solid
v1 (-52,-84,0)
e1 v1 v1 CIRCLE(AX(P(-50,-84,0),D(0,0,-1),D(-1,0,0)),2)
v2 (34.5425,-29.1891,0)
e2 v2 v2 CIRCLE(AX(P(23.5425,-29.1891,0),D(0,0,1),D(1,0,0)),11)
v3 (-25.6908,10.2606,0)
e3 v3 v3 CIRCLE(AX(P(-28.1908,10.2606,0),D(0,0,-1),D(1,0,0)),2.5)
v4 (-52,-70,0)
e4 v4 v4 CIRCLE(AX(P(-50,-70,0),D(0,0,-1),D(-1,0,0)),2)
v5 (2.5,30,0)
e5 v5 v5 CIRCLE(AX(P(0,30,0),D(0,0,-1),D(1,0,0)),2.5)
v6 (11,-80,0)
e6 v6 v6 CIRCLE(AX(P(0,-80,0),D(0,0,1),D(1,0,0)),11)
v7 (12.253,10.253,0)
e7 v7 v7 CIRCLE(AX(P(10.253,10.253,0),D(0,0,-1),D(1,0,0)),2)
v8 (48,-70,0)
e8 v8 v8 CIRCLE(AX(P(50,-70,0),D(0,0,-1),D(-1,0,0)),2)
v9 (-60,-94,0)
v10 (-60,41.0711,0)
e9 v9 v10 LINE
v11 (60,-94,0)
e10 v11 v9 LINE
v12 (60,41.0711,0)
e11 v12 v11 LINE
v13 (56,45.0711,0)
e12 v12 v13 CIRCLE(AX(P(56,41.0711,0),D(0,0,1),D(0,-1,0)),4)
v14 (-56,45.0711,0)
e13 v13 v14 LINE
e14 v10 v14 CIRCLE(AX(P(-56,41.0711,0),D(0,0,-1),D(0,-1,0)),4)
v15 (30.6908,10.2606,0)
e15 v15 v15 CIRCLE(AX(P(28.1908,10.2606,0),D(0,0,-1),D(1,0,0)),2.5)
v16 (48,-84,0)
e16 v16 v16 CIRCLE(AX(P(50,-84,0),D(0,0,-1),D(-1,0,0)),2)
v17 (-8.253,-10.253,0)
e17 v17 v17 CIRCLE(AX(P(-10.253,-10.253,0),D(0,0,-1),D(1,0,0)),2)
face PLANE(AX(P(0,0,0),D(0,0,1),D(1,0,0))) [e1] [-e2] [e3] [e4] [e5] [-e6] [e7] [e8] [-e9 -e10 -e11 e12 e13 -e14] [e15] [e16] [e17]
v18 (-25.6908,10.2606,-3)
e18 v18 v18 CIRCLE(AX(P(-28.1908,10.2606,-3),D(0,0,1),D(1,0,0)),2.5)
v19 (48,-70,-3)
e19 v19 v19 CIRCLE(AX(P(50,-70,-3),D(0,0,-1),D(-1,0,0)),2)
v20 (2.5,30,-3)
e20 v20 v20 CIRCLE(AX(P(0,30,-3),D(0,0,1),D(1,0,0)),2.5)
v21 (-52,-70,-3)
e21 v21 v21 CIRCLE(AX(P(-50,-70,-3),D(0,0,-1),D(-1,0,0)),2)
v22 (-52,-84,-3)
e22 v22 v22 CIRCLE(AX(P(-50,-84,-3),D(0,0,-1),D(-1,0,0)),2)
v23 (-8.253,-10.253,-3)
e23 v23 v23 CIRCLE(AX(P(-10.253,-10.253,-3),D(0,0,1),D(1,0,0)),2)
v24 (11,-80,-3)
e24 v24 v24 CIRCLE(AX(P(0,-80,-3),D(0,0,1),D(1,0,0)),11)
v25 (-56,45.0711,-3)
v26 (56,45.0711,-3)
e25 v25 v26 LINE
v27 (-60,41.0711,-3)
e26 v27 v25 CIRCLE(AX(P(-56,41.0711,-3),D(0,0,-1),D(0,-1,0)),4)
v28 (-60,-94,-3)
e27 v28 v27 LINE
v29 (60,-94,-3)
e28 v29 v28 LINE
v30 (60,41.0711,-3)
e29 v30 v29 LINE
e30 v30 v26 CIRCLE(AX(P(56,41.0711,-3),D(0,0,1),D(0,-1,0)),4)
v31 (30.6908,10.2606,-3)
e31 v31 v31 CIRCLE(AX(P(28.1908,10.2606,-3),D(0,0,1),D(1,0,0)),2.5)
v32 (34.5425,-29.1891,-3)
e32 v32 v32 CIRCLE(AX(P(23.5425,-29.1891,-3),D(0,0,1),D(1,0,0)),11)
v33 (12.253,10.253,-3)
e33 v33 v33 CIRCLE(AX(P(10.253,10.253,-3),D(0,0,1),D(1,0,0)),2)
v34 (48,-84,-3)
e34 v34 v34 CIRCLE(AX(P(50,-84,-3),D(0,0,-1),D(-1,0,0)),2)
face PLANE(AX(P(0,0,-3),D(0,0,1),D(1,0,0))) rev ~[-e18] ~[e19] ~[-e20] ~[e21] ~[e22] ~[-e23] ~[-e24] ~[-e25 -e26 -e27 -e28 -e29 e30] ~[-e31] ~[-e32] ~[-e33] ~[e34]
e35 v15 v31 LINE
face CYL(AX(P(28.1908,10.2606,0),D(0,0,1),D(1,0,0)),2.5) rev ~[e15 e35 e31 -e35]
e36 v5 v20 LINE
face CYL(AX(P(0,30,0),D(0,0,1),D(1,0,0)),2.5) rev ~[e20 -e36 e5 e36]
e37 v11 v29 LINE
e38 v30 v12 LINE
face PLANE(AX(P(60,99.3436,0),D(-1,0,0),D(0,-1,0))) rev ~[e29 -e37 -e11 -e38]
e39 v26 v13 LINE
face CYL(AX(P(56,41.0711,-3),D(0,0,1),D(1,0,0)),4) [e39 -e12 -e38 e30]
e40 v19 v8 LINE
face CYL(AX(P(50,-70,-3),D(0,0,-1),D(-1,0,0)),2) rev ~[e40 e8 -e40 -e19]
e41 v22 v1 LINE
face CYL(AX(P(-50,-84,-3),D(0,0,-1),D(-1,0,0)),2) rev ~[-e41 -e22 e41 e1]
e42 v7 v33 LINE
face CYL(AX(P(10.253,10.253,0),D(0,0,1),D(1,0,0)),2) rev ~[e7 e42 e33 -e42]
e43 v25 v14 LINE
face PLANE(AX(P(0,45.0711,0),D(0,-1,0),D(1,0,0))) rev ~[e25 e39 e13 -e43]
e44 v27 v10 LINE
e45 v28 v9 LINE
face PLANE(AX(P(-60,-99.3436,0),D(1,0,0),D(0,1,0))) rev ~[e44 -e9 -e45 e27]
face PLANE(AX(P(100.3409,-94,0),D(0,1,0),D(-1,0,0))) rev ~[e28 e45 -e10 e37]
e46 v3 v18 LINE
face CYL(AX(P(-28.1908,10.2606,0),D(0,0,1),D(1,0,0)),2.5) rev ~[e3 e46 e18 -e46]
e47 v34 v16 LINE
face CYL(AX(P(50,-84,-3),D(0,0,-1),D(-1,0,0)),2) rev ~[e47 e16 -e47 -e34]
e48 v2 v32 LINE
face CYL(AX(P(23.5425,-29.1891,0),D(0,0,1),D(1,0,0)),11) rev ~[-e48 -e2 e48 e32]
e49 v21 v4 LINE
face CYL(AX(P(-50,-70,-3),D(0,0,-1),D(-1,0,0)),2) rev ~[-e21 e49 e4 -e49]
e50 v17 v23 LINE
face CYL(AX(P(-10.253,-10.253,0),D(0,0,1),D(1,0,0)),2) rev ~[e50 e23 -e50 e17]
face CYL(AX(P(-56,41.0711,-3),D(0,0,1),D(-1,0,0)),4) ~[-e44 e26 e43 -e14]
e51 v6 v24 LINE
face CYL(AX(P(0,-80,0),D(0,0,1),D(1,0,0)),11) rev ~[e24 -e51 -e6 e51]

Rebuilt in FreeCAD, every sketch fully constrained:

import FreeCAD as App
import Part
import Sketcher
from FreeCAD import Vector
Q = App.Units.Quantity


def edges_at(feature, points):
    """Names of the edges that pass closest to the given points."""
    edges = feature.Shape.Edges
    near = lambda p: min(range(len(edges)), key=lambda i: edges[i].distToShape(Part.Vertex(*p))[0])
    return sorted({f"Edge{near(p) + 1}" for p in points})


def add_polygon(sketch, points):
    """Adds a closed chain of lines whose ends are joined by coincident constraints."""
    first, n = sketch.GeometryCount, len(points)
    for a, b in zip(points, points[1:] + points[:1]):
        sketch.addGeometry(Part.LineSegment(App.Vector(*a, 0), App.Vector(*b, 0)), False)
    for i in range(n):
        sketch.addConstraint(Sketcher.Constraint("Coincident", first + i, 2, first + (i + 1) % n, 1))

doc = App.newDocument("Part")
body = doc.addObject("PartDesign::Body", "Body")

# Sketch on XY plane
sketch1 = doc.addObject("Sketcher::SketchObject", "Sketch")
body.addObject(sketch1)
sketch1.AttachmentSupport = (doc.XY_Plane, [""])
sketch1.MapMode = "FlatFace"
add_polygon(sketch1, [(-60, -99), (60, -99), (60, 99), (-60, 99)])  # lines 0-3
sketch1.addConstraint(Sketcher.Constraint("Horizontal", 0))
sketch1.addConstraint(Sketcher.Constraint("Vertical", 1))
sketch1.addConstraint(Sketcher.Constraint("Horizontal", 2))
sketch1.addConstraint(Sketcher.Constraint("Vertical", 3))
sketch1.addConstraint(Sketcher.Constraint("Symmetric", 0, 2, 2, 2, -1, 1))
sketch1.addConstraint(Sketcher.Constraint("DistanceX", 0, 1, 0, 2, Q("120 mm")))
sketch1.addConstraint(Sketcher.Constraint("DistanceY", 1, 1, 1, 2, Q("198.6872 mm")))
pad1 = doc.addObject("PartDesign::Pad", "Pad")
body.addObject(pad1)
pad1.Profile = sketch1
pad1.Length = 3
pad1.Reversed = True

# Sketch on XY plane
sketch2 = doc.addObject("Sketcher::SketchObject", "Sketch001")
body.addObject(sketch2)
sketch2.AttachmentSupport = (doc.XY_Plane, [""])
sketch2.MapMode = "FlatFace"
add_polygon(sketch2, [(-74, 45), (108, 45), (108, 129), (-74, 129)])  # lines 0-3
sketch2.addConstraint(Sketcher.Constraint("Horizontal", 0))
sketch2.addConstraint(Sketcher.Constraint("Vertical", 1))
sketch2.addConstraint(Sketcher.Constraint("Horizontal", 2))
sketch2.addConstraint(Sketcher.Constraint("Vertical", 3))
sketch2.addConstraint(Sketcher.Constraint("DistanceX", 0, 1, 0, 2, Q("182.548 mm")))
sketch2.addConstraint(Sketcher.Constraint("DistanceY", 1, 1, 1, 2, Q("84.3443 mm")))
sketch2.addConstraint(Sketcher.Constraint("DistanceY", -1, 1, 0, 2, Q("45.071 mm")))
sketch2.addConstraint(Sketcher.Constraint("DistanceX", -1, 1, 0, 2, Q("108.1656 mm")))
pocket1 = doc.addObject("PartDesign::Pocket", "Pocket")
body.addObject(pocket1)
pocket1.Profile = sketch2
pocket1.Length = 10
doc.recompute()

fillet = doc.addObject("PartDesign::Fillet", "Fillet")
body.addObject(fillet)
fillet.Base = (pocket1, edges_at(pocket1, [
    (-60, 45.071, -1.5),
    (60, 45.071, -1.5),
    (-60, -99.344, -1.5),
    (60, -99.344, -1.5),
]))
fillet.Radius = 4

# Sketch on XY plane
sketch3 = doc.addObject("Sketcher::SketchObject", "Sketch002")
body.addObject(sketch3)
sketch3.AttachmentSupport = (doc.XY_Plane, [""])
sketch3.MapMode = "FlatFace"
sketch3.addGeometry(Part.Circle(Vector(23.5, -29.2, 0), Vector(0, 0, 1), 4), False)
sketch3.addGeometry(Part.Circle(Vector(0, -80, 0), Vector(0, 0, 1), 4), False)
sketch3.addConstraint(Sketcher.Constraint("Equal", 0, 1))
sketch3.addConstraint(Sketcher.Constraint("PointOnObject", 1, 3, -2))
sketch3.addConstraint(Sketcher.Constraint("Diameter", 0, Q("8 mm")))
sketch3.addConstraint(Sketcher.Constraint("DistanceY", 1, 3, -1, 1, Q("80 mm")))
sketch3.addConstraint(Sketcher.Constraint("DistanceY", 0, 3, -1, 1, Q("29.189 mm")))
sketch3.addConstraint(Sketcher.Constraint("DistanceX", -1, 1, 0, 3, Q("23.5425 mm")))
pocket2 = doc.addObject("PartDesign::Pocket", "Pocket001")
body.addObject(pocket2)
pocket2.Profile = sketch3
pocket2.Length = 10

# Sketch on XY plane
sketch4 = doc.addObject("Sketcher::SketchObject", "Sketch003")
body.addObject(sketch4)
sketch4.AttachmentSupport = (doc.XY_Plane, [""])
sketch4.MapMode = "FlatFace"
add_polygon(sketch4, [(-266, -94), (-266, -159), (100, -159), (100, -94)])  # lines 0-3
sketch4.addConstraint(Sketcher.Constraint("Vertical", 0))
sketch4.addConstraint(Sketcher.Constraint("Horizontal", 1))
sketch4.addConstraint(Sketcher.Constraint("Vertical", 2))
sketch4.addConstraint(Sketcher.Constraint("Horizontal", 3))
sketch4.addConstraint(Sketcher.Constraint("DistanceY", 2, 2, -1, 1, Q("94 mm")))
sketch4.addConstraint(Sketcher.Constraint("DistanceX", 1, 1, 1, 2, Q("366.04 mm")))
sketch4.addConstraint(Sketcher.Constraint("DistanceY", 0, 2, 0, 1, Q("64.784 mm")))
sketch4.addConstraint(Sketcher.Constraint("DistanceX", -1, 1, 1, 2, Q("100.341 mm")))
pocket3 = doc.addObject("PartDesign::Pocket", "Pocket002")
body.addObject(pocket3)
pocket3.Profile = sketch4
pocket3.Length = 10

# Sketch on XY plane
sketch5 = doc.addObject("Sketcher::SketchObject", "Sketch004")
body.addObject(sketch5)
sketch5.AttachmentSupport = (doc.XY_Plane, [""])
sketch5.MapMode = "FlatFace"
sketch5.addGeometry(Part.Circle(Vector(10.3, 10.3, 0), Vector(0, 0, 1), 2), False)
sketch5.addGeometry(Part.Circle(Vector(28.2, 10.3, 0), Vector(0, 0, 1), 2.5), False)
sketch5.addGeometry(Part.Circle(Vector(-10.3, -10.3, 0), Vector(0, 0, 1), 2), False)
sketch5.addGeometry(Part.Circle(Vector(-28.2, 10.3, 0), Vector(0, 0, 1), 2.5), False)
sketch5.addGeometry(Part.Circle(Vector(0, 30, 0), Vector(0, 0, 1), 2.5), False)
sketch5.addConstraint(Sketcher.Constraint("Equal", 0, 2))
sketch5.addConstraint(Sketcher.Constraint("Equal", 1, 3))
sketch5.addConstraint(Sketcher.Constraint("Equal", 3, 4))
sketch5.addConstraint(Sketcher.Constraint("Symmetric", 0, 3, 2, 3, -1, 1))
sketch5.addConstraint(Sketcher.Constraint("Symmetric", 1, 3, 3, 3, -2))
sketch5.addConstraint(Sketcher.Constraint("PointOnObject", 4, 3, -2))
sketch5.addConstraint(Sketcher.Constraint("Diameter", 0, Q("4 mm")))
sketch5.addConstraint(Sketcher.Constraint("Diameter", 1, Q("5 mm")))
sketch5.addConstraint(Sketcher.Constraint("DistanceY", -1, 1, 4, 3, Q("30 mm")))
sketch5.addConstraint(Sketcher.Constraint("DistanceX", -1, 1, 0, 3, Q("10.253 mm")))
sketch5.addConstraint(Sketcher.Constraint("DistanceY", -1, 1, 0, 3, Q("10.253 mm")))
sketch5.addConstraint(Sketcher.Constraint("DistanceX", -1, 1, 1, 3, Q("28.1908 mm")))
sketch5.addConstraint(Sketcher.Constraint("DistanceY", -1, 1, 1, 3, Q("10.2606 mm")))
pocket4 = doc.addObject("PartDesign::Pocket", "Pocket003")
body.addObject(pocket4)
pocket4.Profile = sketch5
pocket4.Length = 10

# Sketch on XY plane
sketch6 = doc.addObject("Sketcher::SketchObject", "Sketch005")
body.addObject(sketch6)
sketch6.AttachmentSupport = (doc.XY_Plane, [""])
sketch6.MapMode = "FlatFace"
sketch6.AttachmentOffset = App.Placement(Vector(0, 0, -3), App.Rotation())
sketch6.addGeometry(Part.Circle(Vector(50, -84, 0), Vector(0, 0, 1), 2), False)
sketch6.addGeometry(Part.Circle(Vector(50, -70, 0), Vector(0, 0, 1), 2), False)
sketch6.addGeometry(Part.Circle(Vector(-50, -70, 0), Vector(0, 0, 1), 2), False)
sketch6.addGeometry(Part.Circle(Vector(-50, -84, 0), Vector(0, 0, 1), 2), False)
sketch6.addConstraint(Sketcher.Constraint("Equal", 0, 1))
sketch6.addConstraint(Sketcher.Constraint("Equal", 1, 2))
sketch6.addConstraint(Sketcher.Constraint("Equal", 2, 3))
sketch6.addConstraint(Sketcher.Constraint("Symmetric", 1, 3, 2, 3, -2))
sketch6.addConstraint(Sketcher.Constraint("Symmetric", 0, 3, 3, 3, -2))
sketch6.addConstraint(Sketcher.Constraint("Vertical", 0, 3, 1, 3))
sketch6.addConstraint(Sketcher.Constraint("Diameter", 0, Q("4 mm")))
sketch6.addConstraint(Sketcher.Constraint("DistanceX", -1, 1, 0, 3, Q("50 mm")))
sketch6.addConstraint(Sketcher.Constraint("DistanceY", 0, 3, -1, 1, Q("84 mm")))
sketch6.addConstraint(Sketcher.Constraint("DistanceY", 1, 3, -1, 1, Q("70 mm")))
pocket5 = doc.addObject("PartDesign::Pocket", "Pocket004")
body.addObject(pocket5)
pocket5.Profile = sketch6
pocket5.Length = 10
pocket5.Reversed = True

# Sketch on XY plane
sketch7 = doc.addObject("Sketcher::SketchObject", "Sketch006")
body.addObject(sketch7)
sketch7.AttachmentSupport = (doc.XY_Plane, [""])
sketch7.MapMode = "FlatFace"
sketch7.addGeometry(Part.Circle(Vector(23.5, -29.2, 0), Vector(0, 0, 1), 11), False)
sketch7.addGeometry(Part.Circle(Vector(23.5, -29.2, 0), Vector(0, 0, 1), 4), False)
sketch7.addGeometry(Part.Circle(Vector(0, -80, 0), Vector(0, 0, 1), 11), False)
sketch7.addGeometry(Part.Circle(Vector(0, -80, 0), Vector(0, 0, 1), 4), False)
sketch7.addConstraint(Sketcher.Constraint("Coincident", 1, 3, 0, 3))
sketch7.addConstraint(Sketcher.Constraint("Coincident", 3, 3, 2, 3))
sketch7.addConstraint(Sketcher.Constraint("Equal", 0, 2))
sketch7.addConstraint(Sketcher.Constraint("Equal", 1, 3))
sketch7.addConstraint(Sketcher.Constraint("PointOnObject", 2, 3, -2))
sketch7.addConstraint(Sketcher.Constraint("Diameter", 0, Q("22 mm")))
sketch7.addConstraint(Sketcher.Constraint("Diameter", 1, Q("8 mm")))
sketch7.addConstraint(Sketcher.Constraint("DistanceY", 2, 3, -1, 1, Q("80 mm")))
sketch7.addConstraint(Sketcher.Constraint("DistanceY", 0, 3, -1, 1, Q("29.189 mm")))
sketch7.addConstraint(Sketcher.Constraint("DistanceX", -1, 1, 0, 3, Q("23.5425 mm")))
pocket6 = doc.addObject("PartDesign::Pocket", "Pocket005")
body.addObject(pocket6)
pocket6.Profile = sketch7
pocket6.Length = 10

doc.recompute()
